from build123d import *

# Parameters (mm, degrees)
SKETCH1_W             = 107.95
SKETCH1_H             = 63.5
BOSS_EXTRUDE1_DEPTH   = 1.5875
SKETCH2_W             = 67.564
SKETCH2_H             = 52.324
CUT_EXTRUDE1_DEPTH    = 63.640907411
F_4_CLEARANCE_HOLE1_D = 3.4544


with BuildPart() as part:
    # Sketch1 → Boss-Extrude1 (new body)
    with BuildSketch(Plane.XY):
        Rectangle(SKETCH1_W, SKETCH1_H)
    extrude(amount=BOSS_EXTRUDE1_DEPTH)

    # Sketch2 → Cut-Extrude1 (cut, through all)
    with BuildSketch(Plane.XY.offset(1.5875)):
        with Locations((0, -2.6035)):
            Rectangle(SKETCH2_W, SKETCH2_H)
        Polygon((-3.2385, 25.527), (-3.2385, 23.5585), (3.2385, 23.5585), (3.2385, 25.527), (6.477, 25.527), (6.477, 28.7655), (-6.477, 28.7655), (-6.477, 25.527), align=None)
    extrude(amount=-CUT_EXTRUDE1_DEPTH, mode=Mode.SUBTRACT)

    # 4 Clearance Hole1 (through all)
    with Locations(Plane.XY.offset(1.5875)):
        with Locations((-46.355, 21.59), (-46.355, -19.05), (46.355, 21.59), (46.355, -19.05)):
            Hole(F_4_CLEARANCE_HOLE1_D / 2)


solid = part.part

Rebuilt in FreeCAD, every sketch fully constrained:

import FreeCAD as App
import Part
import Sketcher

V = App.Vector
Q = App.Units.Quantity

doc = App.newDocument("Part")
body = doc.addObject("PartDesign::Body", "Body")

# Sketch on XY plane
sketch1 = body.newObject("Sketcher::SketchObject", "Sketch")
sketch1.AttachmentSupport = (doc.getObject("XY_Plane"), [""])
sketch1.MapMode = "FlatFace"
sketch1.addGeometry([
    Part.LineSegment(V(-53.975, 31.75, 0), V(-53.975, -31.75, 0)),
    Part.LineSegment(V(-53.975, -31.75, 0), V(53.975, -31.75, 0)),
    Part.LineSegment(V(53.975, -31.75, 0), V(53.975, 31.75, 0)),
    Part.LineSegment(V(53.975, 31.75, 0), V(-53.975, 31.75, 0)),
], False)
sketch1.addConstraint([
    Sketcher.Constraint("Coincident", 0, 2, 1, 1),
    Sketcher.Constraint("Coincident", 1, 2, 2, 1),
    Sketcher.Constraint("Coincident", 2, 2, 3, 1),
    Sketcher.Constraint("Coincident", 3, 2, 0, 1),
    Sketcher.Constraint("Vertical", 0),
    Sketcher.Constraint("Horizontal", 1),
    Sketcher.Constraint("Vertical", 2),
    Sketcher.Constraint("Horizontal", 3),
    Sketcher.Constraint("Symmetric", 0, 2, 2, 2, -1, 1),
    Sketcher.Constraint("DistanceY", 0, 2, 0, 1, Q("2.5 in")),
    Sketcher.Constraint("DistanceX", 1, 1, 1, 2, Q("4.25 in")),
])
pad1 = body.newObject("PartDesign::Pad", "Pad")
pad1.Profile = sketch1
pad1.Length = Q("0.0625 in")

# Sketch on XY plane
sketch2 = body.newObject("Sketcher::SketchObject", "Sketch001")
sketch2.AttachmentSupport = (doc.getObject("XY_Plane"), [""])
sketch2.MapMode = "FlatFace"
sketch2.AttachmentOffset = App.Placement(V(0, 0, 0.0625 * 25.4), App.Rotation())
sketch2.addGeometry([
    Part.LineSegment(V(-33.782, 23.5585, 0), V(-33.782, -28.7655, 0)),  # 0
    Part.LineSegment(V(-33.782, -28.7655, 0), V(33.782, -28.7655, 0)),  # 1
    Part.LineSegment(V(33.782, -28.7655, 0), V(33.782, 23.5585, 0)),  # 2
    Part.LineSegment(V(33.782, 23.5585, 0), V(3.2385, 23.5585, 0)),  # 3
    Part.LineSegment(V(3.2385, 23.5585, 0), V(3.2385, 25.527, 0)),  # 4
    Part.LineSegment(V(3.2385, 25.527, 0), V(6.477, 25.527, 0)),  # 5
    Part.LineSegment(V(6.477, 25.527, 0), V(6.477, 28.7655, 0)),  # 6
    Part.LineSegment(V(6.477, 28.7655, 0), V(-6.477, 28.7655, 0)),  # 7
    Part.LineSegment(V(-6.477, 28.7655, 0), V(-6.477, 25.527, 0)),  # 8
    Part.LineSegment(V(-6.477, 25.527, 0), V(-3.2385, 25.527, 0)),  # 9
    Part.LineSegment(V(-3.2385, 25.527, 0), V(-3.2385, 23.5585, 0)),  # 10
    Part.LineSegment(V(-3.2385, 23.5585, 0), V(-33.782, 23.5585, 0)),  # 11
], False)
sketch2.addConstraint([
    Sketcher.Constraint("Coincident", 0, 2, 1, 1),
    Sketcher.Constraint("Coincident", 1, 2, 2, 1),
    Sketcher.Constraint("Coincident", 2, 2, 3, 1),
    Sketcher.Constraint("Coincident", 3, 2, 4, 1),
    Sketcher.Constraint("Coincident", 4, 2, 5, 1),
    Sketcher.Constraint("Coincident", 5, 2, 6, 1),
    Sketcher.Constraint("Coincident", 6, 2, 7, 1),
    Sketcher.Constraint("Coincident", 7, 2, 8, 1),
    Sketcher.Constraint("Coincident", 8, 2, 9, 1),
    Sketcher.Constraint("Coincident", 9, 2, 10, 1),
    Sketcher.Constraint("Coincident", 10, 2, 11, 1),
    Sketcher.Constraint("Coincident", 11, 2, 0, 1),
    Sketcher.Constraint("Vertical", 0),
    Sketcher.Constraint("Horizontal", 1),
    Sketcher.Constraint("Vertical", 2),
    Sketcher.Constraint("Horizontal", 3),
    Sketcher.Constraint("Vertical", 4),
    Sketcher.Constraint("Horizontal", 5),
    Sketcher.Constraint("Vertical", 6),
    Sketcher.Constraint("Horizontal", 7),
    Sketcher.Constraint("Vertical", 8),
    Sketcher.Constraint("Horizontal", 9),
    Sketcher.Constraint("Vertical", 10),
    Sketcher.Constraint("Horizontal", 11),
    Sketcher.Constraint("Symmetric", 5, 2, 8, 2, -2),
    Sketcher.Constraint("Symmetric", 3, 2, 10, 2, -2),
    Sketcher.Constraint("Equal", 3, 11),
    Sketcher.Constraint("Equal", 9, 6),
    Sketcher.Constraint("DistanceX", 1, 1, 1, 2, Q("2.66 in")),
    Sketcher.Constraint("DistanceX", 7, 2, 7, 1, Q("0.51 in")),
    Sketcher.Constraint("DistanceY", 0, 2, 0, 1, Q("2.06 in")),
    Sketcher.Constraint("DistanceX", 3, 2, 3, 1, Q("1.2025 in")),
    Sketcher.Constraint("DistanceY", 4, 1, 4, 2, Q("0.0775 in")),
    Sketcher.Constraint("DistanceY", -1, 1, 4, 2, Q("1.005 in")),
])
pocket1 = body.newObject("PartDesign::Pocket", "Pocket")
pocket1.Profile = sketch2
pocket1.Type = "ThroughAll"

# Sketch on XY plane
sketch3 = body.newObject("Sketcher::SketchObject", "Sketch002")
sketch3.AttachmentSupport = (doc.getObject("XY_Plane"), [""])
sketch3.MapMode = "FlatFace"
sketch3.AttachmentOffset = App.Placement(V(0, 0, 0.0625 * 25.4), App.Rotation())
sketch3.addGeometry([
    Part.Circle(V(-46.355, 21.59, 0), V(0, 0, 1), 1.7272),
    Part.Circle(V(-46.355, -19.05, 0), V(0, 0, 1), 1.7272),
    Part.Circle(V(46.355, 21.59, 0), V(0, 0, 1), 1.7272),
    Part.Circle(V(46.355, -19.05, 0), V(0, 0, 1), 1.7272),
], False)
sketch3.addConstraint([
    Sketcher.Constraint("Equal", 0, 1),
    Sketcher.Constraint("Equal", 1, 2),
    Sketcher.Constraint("Equal", 2, 3),
    Sketcher.Constraint("Symmetric", 0, 3, 2, 3, -2),
    Sketcher.Constraint("Symmetric", 1, 3, 3, 3, -2),
    Sketcher.Constraint("Vertical", 0, 3, 1, 3),
    Sketcher.Constraint("Diameter", 0, Q("0.136 in")),
    Sketcher.Constraint("DistanceY", 1, 3, 0, 3, Q("1.6 in")),
    Sketcher.Constraint("DistanceY", -1, 1, 0, 3, Q("0.85 in")),
    Sketcher.Constraint("DistanceX", 0, 3, 2, 3, Q("3.65 in")),
])
doc.recompute()
hole = body.newObject("PartDesign::Hole", "Hole")
hole.Profile = sketch3
hole.ThreadType = "None"
hole.Diameter = Q("0.136 in")
hole.DepthType = "ThroughAll"

doc.recompute()
